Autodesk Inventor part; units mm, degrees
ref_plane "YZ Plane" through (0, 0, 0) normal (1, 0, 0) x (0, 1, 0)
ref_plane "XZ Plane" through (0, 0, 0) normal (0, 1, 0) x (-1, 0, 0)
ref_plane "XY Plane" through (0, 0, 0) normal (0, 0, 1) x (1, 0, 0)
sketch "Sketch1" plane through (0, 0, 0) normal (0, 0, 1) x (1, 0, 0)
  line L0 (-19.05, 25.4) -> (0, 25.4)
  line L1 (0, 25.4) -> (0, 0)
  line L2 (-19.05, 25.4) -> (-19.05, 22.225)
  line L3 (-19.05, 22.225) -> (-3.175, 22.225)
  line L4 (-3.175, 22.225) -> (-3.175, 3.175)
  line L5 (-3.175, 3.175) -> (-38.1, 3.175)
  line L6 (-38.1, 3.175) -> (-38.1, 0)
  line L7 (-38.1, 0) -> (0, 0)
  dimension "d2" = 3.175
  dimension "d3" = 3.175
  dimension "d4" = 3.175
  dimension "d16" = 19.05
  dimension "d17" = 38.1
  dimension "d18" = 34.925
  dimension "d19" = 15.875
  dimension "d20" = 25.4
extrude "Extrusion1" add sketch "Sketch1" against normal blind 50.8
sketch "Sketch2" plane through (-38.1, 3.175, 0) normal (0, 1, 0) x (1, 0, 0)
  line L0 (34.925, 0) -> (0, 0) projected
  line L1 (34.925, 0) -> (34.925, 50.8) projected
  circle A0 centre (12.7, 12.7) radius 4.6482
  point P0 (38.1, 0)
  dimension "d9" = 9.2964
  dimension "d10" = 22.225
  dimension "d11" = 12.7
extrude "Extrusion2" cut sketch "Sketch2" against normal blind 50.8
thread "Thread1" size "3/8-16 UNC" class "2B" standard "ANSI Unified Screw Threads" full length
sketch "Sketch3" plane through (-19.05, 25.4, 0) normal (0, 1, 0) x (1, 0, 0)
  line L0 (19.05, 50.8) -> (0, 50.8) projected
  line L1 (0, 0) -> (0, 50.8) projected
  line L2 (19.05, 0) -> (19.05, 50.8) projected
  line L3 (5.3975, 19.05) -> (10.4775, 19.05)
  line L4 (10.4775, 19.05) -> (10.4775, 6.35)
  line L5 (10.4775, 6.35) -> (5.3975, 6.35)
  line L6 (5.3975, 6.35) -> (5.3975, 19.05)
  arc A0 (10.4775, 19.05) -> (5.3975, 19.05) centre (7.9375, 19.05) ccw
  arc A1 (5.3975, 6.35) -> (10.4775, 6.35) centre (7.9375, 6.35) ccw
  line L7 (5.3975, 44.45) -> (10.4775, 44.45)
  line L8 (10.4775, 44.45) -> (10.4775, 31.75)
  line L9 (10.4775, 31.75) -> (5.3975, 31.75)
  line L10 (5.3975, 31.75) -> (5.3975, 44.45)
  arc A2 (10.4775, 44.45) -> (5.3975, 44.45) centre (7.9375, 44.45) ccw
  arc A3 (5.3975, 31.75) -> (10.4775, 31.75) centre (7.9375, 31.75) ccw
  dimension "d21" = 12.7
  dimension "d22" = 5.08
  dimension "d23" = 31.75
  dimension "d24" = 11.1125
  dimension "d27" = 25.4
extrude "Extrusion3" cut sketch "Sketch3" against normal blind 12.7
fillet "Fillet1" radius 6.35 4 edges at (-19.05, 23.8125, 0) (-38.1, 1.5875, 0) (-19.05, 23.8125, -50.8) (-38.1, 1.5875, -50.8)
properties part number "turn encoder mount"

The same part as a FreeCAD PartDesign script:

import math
import FreeCAD as App
import Part
import Sketcher
Q = App.Units.Quantity


def edges_at(feature, points):
    """Names of the edges that pass closest to the given points."""
    edges = feature.Shape.Edges
    near = lambda p: min(range(len(edges)), key=lambda i: edges[i].distToShape(Part.Vertex(*p))[0])
    return sorted({f"Edge{near(p) + 1}" for p in points})

doc = App.newDocument("Part")
params = doc.addObject("Spreadsheet::Sheet", "Params")
for row, (alias, value) in enumerate([
    ("sketch1_height", "1 in"),
    ("sketch1_width", "1.5 in"),
    ("sketch1_width2", "0.75 in"),
    ("sketch1_width3", "0.625 in"),
    ("pad1_length", "2 in"),
    ("sketch2_diameter", "0.366 in"),
    ("pocket1_length", "2 in"),
    ("sketch3_radius", "0.1 in"),
    ("sketch3_height", "0.5 in"),
    ("pocket2_length", "0.5 in"),
    ("fillet_radius", "0.25 in"),
], start=1):
    params.set(f"A{row}", alias)
    params.set(f"B{row}", "=" + value)
    params.setAlias(f"B{row}", alias)

body = doc.addObject("PartDesign::Body", "Body")

sketch1 = body.newObject("Sketcher::SketchObject", "Sketch")
sketch1.AttachmentSupport = (doc.getObject("XY_Plane"), [""])
sketch1.MapMode = "FlatFace"
sketch1.addGeometry([
    Part.LineSegment(App.Vector(0, 25.4, 0), App.Vector(-19.1, 25.4, 0)),
    Part.LineSegment(App.Vector(-19.1, 25.4, 0), App.Vector(-19.1, 22.2, 0)),
    Part.LineSegment(App.Vector(-19.1, 22.2, 0), App.Vector(-3.2, 22.2, 0)),
    Part.LineSegment(App.Vector(-3.2, 22.2, 0), App.Vector(-3.2, 3.2, 0)),
    Part.LineSegment(App.Vector(-3.2, 3.2, 0), App.Vector(-38.1, 3.2, 0)),
    Part.LineSegment(App.Vector(-38.1, 3.2, 0), App.Vector(-38.1, 0, 0)),
    Part.LineSegment(App.Vector(-38.1, 0, 0), App.Vector(0, 0, 0)),
    Part.LineSegment(App.Vector(0, 0, 0), App.Vector(0, 25.4, 0)),
], False)
sketch1.addConstraint([
    Sketcher.Constraint("Coincident", 0, 2, 1, 1),
    Sketcher.Constraint("Coincident", 1, 2, 2, 1),
    Sketcher.Constraint("Coincident", 2, 2, 3, 1),
    Sketcher.Constraint("Coincident", 3, 2, 4, 1),
    Sketcher.Constraint("Coincident", 4, 2, 5, 1),
    Sketcher.Constraint("Coincident", 5, 2, 6, 1),
    Sketcher.Constraint("Coincident", 6, 2, 7, 1),
    Sketcher.Constraint("Coincident", 7, 2, 0, 1),
    Sketcher.Constraint("Horizontal", 0),
    Sketcher.Constraint("Vertical", 1),
    Sketcher.Constraint("Horizontal", 2),
    Sketcher.Constraint("Vertical", 3),
    Sketcher.Constraint("Horizontal", 4),
    Sketcher.Constraint("Vertical", 5),
    Sketcher.Constraint("Horizontal", 6),
    Sketcher.Constraint("Vertical", 7),
    Sketcher.Constraint("Coincident", 6, 2, -1, 1),
    Sketcher.Constraint("Equal", 0, 3),
    Sketcher.Constraint("Equal", 1, 5),
    Sketcher.Constraint("DistanceY", 7, 1, 7, 2, Q("1 in")),
    Sketcher.Constraint("DistanceX", 6, 1, 6, 2, Q("1.5 in")),
    Sketcher.Constraint("DistanceX", 0, 2, 0, 1, Q("0.75 in")),
    Sketcher.Constraint("DistanceX", 2, 1, 2, 2, Q("0.625 in")),
])
sketch1.setExpression("Constraints[19]", "Params.sketch1_height")
sketch1.setExpression("Constraints[20]", "Params.sketch1_width")
sketch1.setExpression("Constraints[21]", "Params.sketch1_width2")
sketch1.setExpression("Constraints[22]", "Params.sketch1_width3")
pad1 = body.newObject("PartDesign::Pad", "Pad")
pad1.Profile = sketch1
pad1.setExpression("Length", "Params.pad1_length")
pad1.Reversed = True

sketch2 = body.newObject("Sketcher::SketchObject", "Sketch001")
sketch2.AttachmentSupport = (doc.getObject("XZ_Plane"), [""])
sketch2.MapMode = "FlatFace"
sketch2.AttachmentOffset = App.Placement(App.Vector(0, 0, -0.125 * 25.4), App.Rotation())
sketch2.addGeometry(Part.Circle(App.Vector(-25.4, -12.7, 0), App.Vector(0, 0, 1), 4.6), False)
sketch2.addConstraint([
    Sketcher.Constraint("Diameter", 0, Q("0.366 in")),
    Sketcher.Constraint("DistanceY", 0, 3, -1, 1, Q("0.5 in")),
    Sketcher.Constraint("DistanceX", 0, 3, -1, 1, Q("1 in")),
])
sketch2.setExpression("Constraints[0]", "Params.sketch2_diameter")
pocket1 = body.newObject("PartDesign::Pocket", "Pocket")
pocket1.Profile = sketch2
pocket1.setExpression("Length", "Params.pocket1_length")
pocket1.Reversed = True

sketch3 = body.newObject("Sketcher::SketchObject", "Sketch002")
sketch3.AttachmentSupport = (doc.getObject("XZ_Plane"), [""])
sketch3.MapMode = "FlatFace"
sketch3.AttachmentOffset = App.Placement(App.Vector(0, 0, -1 * 25.4), App.Rotation())
sketch3.addGeometry([
    Part.ArcOfCircle(Part.Circle(App.Vector(-11.1, -19.1, 0), App.Vector(0, 0, 1), 2.5), math.radians(180), math.radians(360)),
    Part.LineSegment(App.Vector(-13.7, -19.1, 0), App.Vector(-13.7, -6.3, 0)),
    Part.ArcOfCircle(Part.Circle(App.Vector(-11.1, -6.3, 0), App.Vector(0, 0, 1), 2.5), math.radians(0), math.radians(180)),
    Part.LineSegment(App.Vector(-8.6, -6.3, 0), App.Vector(-8.6, -19.1, 0)),
    Part.ArcOfCircle(Part.Circle(App.Vector(-11.1, -44.5, 0), App.Vector(0, 0, 1), 2.5), math.radians(180), math.radians(360)),
    Part.LineSegment(App.Vector(-13.7, -44.5, 0), App.Vector(-13.7, -31.8, 0)),
    Part.ArcOfCircle(Part.Circle(App.Vector(-11.1, -31.8, 0), App.Vector(0, 0, 1), 2.5), math.radians(0), math.radians(180)),
    Part.LineSegment(App.Vector(-8.6, -31.8, 0), App.Vector(-8.6, -44.5, 0)),
], False)
sketch3.addConstraint([
    Sketcher.Constraint("Tangent", 0, 1, 1, 1),
    Sketcher.Constraint("Tangent", 1, 2, 2, 2),
    Sketcher.Constraint("Tangent", 2, 1, 3, 1),
    Sketcher.Constraint("Tangent", 3, 2, 0, 2),
    Sketcher.Constraint("Tangent", 4, 1, 5, 1),
    Sketcher.Constraint("Tangent", 5, 2, 6, 2),
    Sketcher.Constraint("Tangent", 6, 1, 7, 1),
    Sketcher.Constraint("Tangent", 7, 2, 4, 2),
    Sketcher.Constraint("Vertical", 1),
    Sketcher.Constraint("Vertical", 3),
    Sketcher.Constraint("Vertical", 5),
    Sketcher.Constraint("Vertical", 7),
    Sketcher.Constraint("Equal", 2, 4),
    Sketcher.Constraint("Vertical", 2, 3, 4, 3),
    Sketcher.Constraint("Equal", 3, 5),
    Sketcher.Constraint("Radius", 0, Q("0.1 in")),
    Sketcher.Constraint("DistanceY", 1, 1, 1, 2, Q("0.5 in")),
    Sketcher.Constraint("DistanceY", 4, 3, 0, 3, Q("1 in")),
    Sketcher.Constraint("DistanceY", 6, 3, -1, 1, Q("1.25 in")),
    Sketcher.Constraint("DistanceX", 0, 3, -1, 1, Q("0.4375 in")),
])
sketch3.setExpression("Constraints[15]", "Params.sketch3_radius")
sketch3.setExpression("Constraints[16]", "Params.sketch3_height")
pocket2 = body.newObject("PartDesign::Pocket", "Pocket001")
pocket2.Profile = sketch3
pocket2.setExpression("Length", "Params.pocket2_length")
pocket2.Reversed = True
doc.recompute()

fillet = body.newObject("PartDesign::Fillet", "Fillet")
fillet.Base = (pocket2, edges_at(pocket2, [
    (-19.05, 23.812, 0),
    (-38.1, 1.587, 0),
    (-19.05, 23.812, -50.8),
    (-38.1, 1.587, -50.8),
]))
fillet.setExpression("Radius", "Params.fillet_radius")

doc.recompute()
